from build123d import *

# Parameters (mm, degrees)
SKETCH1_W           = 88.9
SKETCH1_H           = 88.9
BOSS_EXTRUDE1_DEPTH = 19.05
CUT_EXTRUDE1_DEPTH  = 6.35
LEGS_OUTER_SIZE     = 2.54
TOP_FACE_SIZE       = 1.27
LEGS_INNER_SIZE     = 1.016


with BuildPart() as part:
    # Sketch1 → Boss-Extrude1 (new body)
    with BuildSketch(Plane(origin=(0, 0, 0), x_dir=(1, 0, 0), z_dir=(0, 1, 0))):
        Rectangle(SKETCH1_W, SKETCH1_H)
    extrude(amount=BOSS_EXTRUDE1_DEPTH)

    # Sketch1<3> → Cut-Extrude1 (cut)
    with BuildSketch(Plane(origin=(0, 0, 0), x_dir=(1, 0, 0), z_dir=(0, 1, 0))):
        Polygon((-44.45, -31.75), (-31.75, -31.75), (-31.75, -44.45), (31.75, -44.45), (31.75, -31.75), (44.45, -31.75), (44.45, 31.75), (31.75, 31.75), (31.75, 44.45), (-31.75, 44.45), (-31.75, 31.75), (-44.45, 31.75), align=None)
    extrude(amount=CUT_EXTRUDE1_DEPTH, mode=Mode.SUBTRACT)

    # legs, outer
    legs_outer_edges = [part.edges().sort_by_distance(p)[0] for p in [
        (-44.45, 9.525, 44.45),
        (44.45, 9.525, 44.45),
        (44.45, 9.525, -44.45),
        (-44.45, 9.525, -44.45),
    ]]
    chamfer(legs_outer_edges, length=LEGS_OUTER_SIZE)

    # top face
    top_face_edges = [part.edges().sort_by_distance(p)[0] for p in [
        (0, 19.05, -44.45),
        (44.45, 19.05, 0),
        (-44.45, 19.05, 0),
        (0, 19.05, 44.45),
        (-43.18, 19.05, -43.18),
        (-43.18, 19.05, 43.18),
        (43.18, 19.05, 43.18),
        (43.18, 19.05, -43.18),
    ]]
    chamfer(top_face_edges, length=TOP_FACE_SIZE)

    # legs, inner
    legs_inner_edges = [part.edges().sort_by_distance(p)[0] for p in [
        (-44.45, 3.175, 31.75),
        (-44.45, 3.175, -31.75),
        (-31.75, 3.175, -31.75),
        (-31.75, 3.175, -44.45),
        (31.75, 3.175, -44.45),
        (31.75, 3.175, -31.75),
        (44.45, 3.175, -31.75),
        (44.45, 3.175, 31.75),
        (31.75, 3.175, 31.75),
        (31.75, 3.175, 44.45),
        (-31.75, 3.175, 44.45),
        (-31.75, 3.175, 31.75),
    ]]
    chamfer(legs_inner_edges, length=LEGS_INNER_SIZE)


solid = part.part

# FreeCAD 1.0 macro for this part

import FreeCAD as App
import Part
import Sketcher

V = App.Vector
Q = App.Units.Quantity


def edges_at(feature, points):
    """Names of the edges that pass closest to the given points."""
    edges = feature.Shape.Edges
    near = lambda p: min(range(len(edges)), key=lambda i: edges[i].distToShape(Part.Vertex(*p))[0])
    return sorted({f"Edge{near(p) + 1}" for p in points})


def add_polygon(sketch, points):
    """Adds a closed chain of lines whose ends are joined by coincident constraints."""
    first, n = sketch.GeometryCount, len(points)
    for a, b in zip(points, points[1:] + points[:1]):
        sketch.addGeometry(Part.LineSegment(App.Vector(*a, 0), App.Vector(*b, 0)), False)
    for i in range(n):
        sketch.addConstraint(Sketcher.Constraint("Coincident", first + i, 2, first + (i + 1) % n, 1))

doc = App.newDocument("Part")
body = doc.addObject("PartDesign::Body", "Body")

# Sketch on XZ plane
sketch1 = body.newObject("Sketcher::SketchObject", "Sketch")
sketch1.AttachmentSupport = (doc.getObject("XZ_Plane"), [""])
sketch1.MapMode = "FlatFace"
add_polygon(sketch1, [(-44, -44), (-44, 44), (44, 44), (44, -44)])  # lines 0-3
sketch1.addConstraint(Sketcher.Constraint("Vertical", 0))
sketch1.addConstraint(Sketcher.Constraint("Horizontal", 1))
sketch1.addConstraint(Sketcher.Constraint("Vertical", 2))
sketch1.addConstraint(Sketcher.Constraint("Horizontal", 3))
sketch1.addConstraint(Sketcher.Constraint("Symmetric", 0, 2, 2, 2, -1, 1))
sketch1.addConstraint(Sketcher.Constraint("Equal", 3, 0))
sketch1.addConstraint(Sketcher.Constraint("DistanceX", 1, 1, 1, 2, Q("3.5 in")))
pad1 = body.newObject("PartDesign::Pad", "Pad")
pad1.Profile = sketch1
pad1.Length = Q("0.75 in")
pad1.Reversed = True

# Sketch on XZ plane
sketch2 = body.newObject("Sketcher::SketchObject", "Sketch001")
sketch2.AttachmentSupport = (doc.getObject("XZ_Plane"), [""])
sketch2.MapMode = "FlatFace"
add_polygon(sketch2, [(-44, 32), (-32, 32), (-32, 44), (32, 44), (32, 32), (44, 32), (44, -32), (32, -32), (32, -44), (-32, -44), (-32, -32), (-44, -32)])  # lines 0-11
sketch2.addConstraint(Sketcher.Constraint("Horizontal", 0))
sketch2.addConstraint(Sketcher.Constraint("Vertical", 1))
sketch2.addConstraint(Sketcher.Constraint("Horizontal", 2))
sketch2.addConstraint(Sketcher.Constraint("Vertical", 3))
sketch2.addConstraint(Sketcher.Constraint("Horizontal", 4))
sketch2.addConstraint(Sketcher.Constraint("Vertical", 5))
sketch2.addConstraint(Sketcher.Constraint("Horizontal", 6))
sketch2.addConstraint(Sketcher.Constraint("Vertical", 7))
sketch2.addConstraint(Sketcher.Constraint("Horizontal", 8))
sketch2.addConstraint(Sketcher.Constraint("Vertical", 9))
sketch2.addConstraint(Sketcher.Constraint("Horizontal", 10))
sketch2.addConstraint(Sketcher.Constraint("Vertical", 11))
sketch2.addConstraint(Sketcher.Constraint("Symmetric", 0, 2, 6, 2, -1, 1))
sketch2.addConstraint(Sketcher.Constraint("Symmetric", 2, 2, 8, 2, -1, 1))
sketch2.addConstraint(Sketcher.Constraint("Symmetric", 4, 2, 10, 2, -1, 1))
sketch2.addConstraint(Sketcher.Constraint("Symmetric", 0, 2, 3, 2, -2))
sketch2.addConstraint(Sketcher.Constraint("Equal", 10, 1))
sketch2.addConstraint(Sketcher.Constraint("Equal", 8, 5))
sketch2.addConstraint(Sketcher.Constraint("DistanceX", 0, 1, 0, 2, Q("0.5 in")))
sketch2.addConstraint(Sketcher.Constraint("DistanceX", 2, 1, 2, 2, Q("2.5 in")))
pocket1 = body.newObject("PartDesign::Pocket", "Pocket")
pocket1.Profile = sketch2
pocket1.Length = Q("0.25 in")
doc.recompute()

chamfer = body.newObject("PartDesign::Chamfer", "Chamfer")
chamfer.Base = (pocket1, edges_at(pocket1, [
    (-44.45, 9.525, 44.45),
    (44.45, 9.525, 44.45),
    (44.45, 9.525, -44.45),
    (-44.45, 9.525, -44.45),
]))
chamfer.Size = Q("0.1 in")
doc.recompute()

chamfer2 = body.newObject("PartDesign::Chamfer", "Chamfer001")
chamfer2.Base = (chamfer, edges_at(chamfer, [
    (0, 19.05, -44.45),
    (44.45, 19.05, 0),
    (-44.45, 19.05, 0),
    (0, 19.05, 44.45),
    (-43.18, 19.05, -43.18),
    (-43.18, 19.05, 43.18),
    (43.18, 19.05, 43.18),
    (43.18, 19.05, -43.18),
]))
chamfer2.Size = Q("0.05 in")
doc.recompute()

chamfer3 = body.newObject("PartDesign::Chamfer", "Chamfer002")
chamfer3.Base = (chamfer2, edges_at(chamfer2, [
    (-44.45, 3.175, 31.75),
    (-44.45, 3.175, -31.75),
    (-31.75, 3.175, -31.75),
    (-31.75, 3.175, -44.45),
    (31.75, 3.175, -44.45),
    (31.75, 3.175, -31.75),
    (44.45, 3.175, -31.75),
    (44.45, 3.175, 31.75),
    (31.75, 3.175, 31.75),
    (31.75, 3.175, 44.45),
    (-31.75, 3.175, 44.45),
    (-31.75, 3.175, 31.75),
]))
chamfer3.Size = Q("0.04 in")

doc.recompute()
